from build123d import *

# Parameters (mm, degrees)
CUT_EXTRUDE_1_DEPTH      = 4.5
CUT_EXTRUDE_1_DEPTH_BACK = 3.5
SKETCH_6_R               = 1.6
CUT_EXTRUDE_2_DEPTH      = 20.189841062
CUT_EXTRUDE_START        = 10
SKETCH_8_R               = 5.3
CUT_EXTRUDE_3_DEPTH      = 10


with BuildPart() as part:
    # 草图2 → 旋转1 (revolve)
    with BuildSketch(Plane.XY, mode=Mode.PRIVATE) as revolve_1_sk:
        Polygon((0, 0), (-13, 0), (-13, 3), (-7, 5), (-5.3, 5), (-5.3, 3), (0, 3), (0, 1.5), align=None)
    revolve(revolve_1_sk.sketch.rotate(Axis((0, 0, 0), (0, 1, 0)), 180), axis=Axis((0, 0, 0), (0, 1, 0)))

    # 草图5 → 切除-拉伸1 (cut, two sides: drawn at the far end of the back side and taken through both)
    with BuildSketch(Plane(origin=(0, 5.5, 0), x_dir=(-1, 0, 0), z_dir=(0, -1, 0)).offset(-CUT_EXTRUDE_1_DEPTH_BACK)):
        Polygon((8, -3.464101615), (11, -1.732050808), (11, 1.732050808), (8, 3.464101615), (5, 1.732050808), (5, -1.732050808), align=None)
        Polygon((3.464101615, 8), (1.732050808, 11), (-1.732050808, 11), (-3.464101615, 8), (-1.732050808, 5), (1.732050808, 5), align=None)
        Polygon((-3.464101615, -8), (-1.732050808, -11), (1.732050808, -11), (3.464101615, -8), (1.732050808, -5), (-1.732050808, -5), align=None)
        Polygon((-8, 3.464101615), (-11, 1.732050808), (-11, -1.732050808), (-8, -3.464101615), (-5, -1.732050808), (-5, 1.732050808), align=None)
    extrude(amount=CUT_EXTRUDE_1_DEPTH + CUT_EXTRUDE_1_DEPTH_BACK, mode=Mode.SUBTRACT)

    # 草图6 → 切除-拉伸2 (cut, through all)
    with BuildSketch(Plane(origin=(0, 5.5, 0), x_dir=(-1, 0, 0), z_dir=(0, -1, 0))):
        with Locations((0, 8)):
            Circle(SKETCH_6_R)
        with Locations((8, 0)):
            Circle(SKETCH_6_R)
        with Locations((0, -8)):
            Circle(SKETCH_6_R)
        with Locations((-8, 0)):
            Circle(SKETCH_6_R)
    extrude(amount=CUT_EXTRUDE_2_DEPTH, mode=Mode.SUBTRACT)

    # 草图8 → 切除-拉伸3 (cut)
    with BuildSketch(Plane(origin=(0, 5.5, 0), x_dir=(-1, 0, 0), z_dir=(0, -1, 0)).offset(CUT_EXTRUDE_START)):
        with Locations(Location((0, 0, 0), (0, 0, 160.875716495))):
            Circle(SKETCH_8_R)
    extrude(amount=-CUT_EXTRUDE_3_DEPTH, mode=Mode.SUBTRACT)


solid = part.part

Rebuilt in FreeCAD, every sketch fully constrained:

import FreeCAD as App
import Part
import Sketcher

V = App.Vector
Q = App.Units.Quantity

doc = App.newDocument("Part")
body = doc.addObject("PartDesign::Body", "Body")

# Sketch on XY plane
sketch1 = body.newObject("Sketcher::SketchObject", "Sketch")
sketch1.AttachmentSupport = (doc.getObject("XY_Plane"), [""])
sketch1.MapMode = "FlatFace"
sketch1.addGeometry([
    Part.LineSegment(V(-13, 0, 0), V(0, 0, 0)),  # 0
    Part.LineSegment(V(0, 0, 0), V(0, 3, 0)),  # 1
    Part.LineSegment(V(0, 3, 0), V(-5.3, 3, 0)),  # 2
    Part.LineSegment(V(-5.3, 3, 0), V(-5.3, 5, 0)),  # 3
    Part.LineSegment(V(-5.3, 5, 0), V(-7, 5, 0)),  # 4
    Part.LineSegment(V(-7, 5, 0), V(-13, 3, 0)),  # 5
    Part.LineSegment(V(-13, 3, 0), V(-13, 0, 0)),  # 6
], False)
sketch1.addConstraint([
    Sketcher.Constraint("Coincident", 0, 2, 1, 1),
    Sketcher.Constraint("Coincident", 1, 2, 2, 1),
    Sketcher.Constraint("Coincident", 2, 2, 3, 1),
    Sketcher.Constraint("Coincident", 3, 2, 4, 1),
    Sketcher.Constraint("Coincident", 4, 2, 5, 1),
    Sketcher.Constraint("Coincident", 5, 2, 6, 1),
    Sketcher.Constraint("Coincident", 6, 2, 0, 1),
    Sketcher.Constraint("Horizontal", 0),
    Sketcher.Constraint("Vertical", 1),
    Sketcher.Constraint("Horizontal", 2),
    Sketcher.Constraint("Vertical", 3),
    Sketcher.Constraint("Horizontal", 4),
    Sketcher.Constraint("Vertical", 6),
    Sketcher.Constraint("Coincident", 0, 2, -1, 1),
    Sketcher.Constraint("Horizontal", 2, 2, 5, 2),
    Sketcher.Constraint("DistanceX", 0, 1, 0, 2, 13.0),
    Sketcher.Constraint("DistanceY", 1, 1, 1, 2, 3.0),
    Sketcher.Constraint("DistanceY", 3, 1, 3, 2, 2.0),
    Sketcher.Constraint("DistanceX", 2, 2, 2, 1, 5.3),
    Sketcher.Constraint("DistanceX", 4, 2, 4, 1, 1.7),
])
revolution = body.newObject("PartDesign::Revolution", "Revolution")
revolution.Profile = sketch1
revolution.ReferenceAxis = (sketch1, ["V_Axis"])
revolution.Angle = 360

# Sketch on XZ plane
sketch2 = body.newObject("Sketcher::SketchObject", "Sketch001")
sketch2.AttachmentSupport = (doc.getObject("XZ_Plane"), [""])
sketch2.MapMode = "FlatFace"
sketch2.AttachmentOffset = App.Placement(V(0, 0, -5.5), App.Rotation())
sketch2.addGeometry([
    Part.LineSegment(V(-8, 3.5, 0), V(-11, 1.7, 0)),  # 0
    Part.LineSegment(V(-11, 1.7, 0), V(-11, -1.7, 0)),  # 1
    Part.LineSegment(V(-11, -1.7, 0), V(-8, -3.5, 0)),  # 2
    Part.LineSegment(V(-8, -3.5, 0), V(-5, -1.7, 0)),  # 3
    Part.LineSegment(V(-5, -1.7, 0), V(-5, 1.7, 0)),  # 4
    Part.LineSegment(V(-5, 1.7, 0), V(-8, 3.5, 0)),  # 5
    Part.LineSegment(V(-3.5, -8, 0), V(-1.7, -11, 0)),  # 6
    Part.LineSegment(V(-1.7, -11, 0), V(1.7, -11, 0)),  # 7
    Part.LineSegment(V(1.7, -11, 0), V(3.5, -8, 0)),  # 8
    Part.LineSegment(V(3.5, -8, 0), V(1.7, -5, 0)),  # 9
    Part.LineSegment(V(1.7, -5, 0), V(-1.7, -5, 0)),  # 10
    Part.LineSegment(V(-1.7, -5, 0), V(-3.5, -8, 0)),  # 11
    Part.LineSegment(V(3.5, 8, 0), V(1.7, 11, 0)),  # 12
    Part.LineSegment(V(1.7, 11, 0), V(-1.7, 11, 0)),  # 13
    Part.LineSegment(V(-1.7, 11, 0), V(-3.5, 8, 0)),  # 14
    Part.LineSegment(V(-3.5, 8, 0), V(-1.7, 5, 0)),  # 15
    Part.LineSegment(V(-1.7, 5, 0), V(1.7, 5, 0)),  # 16
    Part.LineSegment(V(1.7, 5, 0), V(3.5, 8, 0)),  # 17
    Part.LineSegment(V(8, -3.5, 0), V(11, -1.7, 0)),  # 18
    Part.LineSegment(V(11, -1.7, 0), V(11, 1.7, 0)),  # 19
    Part.LineSegment(V(11, 1.7, 0), V(8, 3.5, 0)),  # 20
    Part.LineSegment(V(8, 3.5, 0), V(5, 1.7, 0)),  # 21
    Part.LineSegment(V(5, 1.7, 0), V(5, -1.7, 0)),  # 22
    Part.LineSegment(V(5, -1.7, 0), V(8, -3.5, 0)),  # 23
], False)
sketch2.addConstraint([
    Sketcher.Constraint("Coincident", 0, 2, 1, 1),
    Sketcher.Constraint("Coincident", 1, 2, 2, 1),
    Sketcher.Constraint("Coincident", 2, 2, 3, 1),
    Sketcher.Constraint("Coincident", 3, 2, 4, 1),
    Sketcher.Constraint("Coincident", 4, 2, 5, 1),
    Sketcher.Constraint("Coincident", 5, 2, 0, 1),
    Sketcher.Constraint("Coincident", 6, 2, 7, 1),
    Sketcher.Constraint("Coincident", 7, 2, 8, 1),
    Sketcher.Constraint("Coincident", 8, 2, 9, 1),
    Sketcher.Constraint("Coincident", 9, 2, 10, 1),
    Sketcher.Constraint("Coincident", 10, 2, 11, 1),
    Sketcher.Constraint("Coincident", 11, 2, 6, 1),
    Sketcher.Constraint("Coincident", 12, 2, 13, 1),
    Sketcher.Constraint("Coincident", 13, 2, 14, 1),
    Sketcher.Constraint("Coincident", 14, 2, 15, 1),
    Sketcher.Constraint("Coincident", 15, 2, 16, 1),
    Sketcher.Constraint("Coincident", 16, 2, 17, 1),
    Sketcher.Constraint("Coincident", 17, 2, 12, 1),
    Sketcher.Constraint("Coincident", 18, 2, 19, 1),
    Sketcher.Constraint("Coincident", 19, 2, 20, 1),
    Sketcher.Constraint("Coincident", 20, 2, 21, 1),
    Sketcher.Constraint("Coincident", 21, 2, 22, 1),
    Sketcher.Constraint("Coincident", 22, 2, 23, 1),
    Sketcher.Constraint("Coincident", 23, 2, 18, 1),
    Sketcher.Constraint("Vertical", 1),
    Sketcher.Constraint("Vertical", 4),
    Sketcher.Constraint("Horizontal", 7),
    Sketcher.Constraint("Horizontal", 10),
    Sketcher.Constraint("Horizontal", 13),
    Sketcher.Constraint("Horizontal", 16),
    Sketcher.Constraint("Vertical", 19),
    Sketcher.Constraint("Vertical", 22),
    Sketcher.Constraint("Symmetric", 6, 2, 12, 2, -1, 1),
    Sketcher.Constraint("Symmetric", 8, 2, 14, 2, -1, 1),
    Sketcher.Constraint("Symmetric", 9, 2, 15, 2, -1, 1),
    Sketcher.Constraint("Symmetric", 11, 2, 17, 2, -1, 1),
    Sketcher.Constraint("Symmetric", 0, 2, 18, 2, -1, 1),
    Sketcher.Constraint("Symmetric", 2, 2, 20, 2, -1, 1),
    Sketcher.Constraint("Symmetric", 3, 2, 21, 2, -1, 1),
    Sketcher.Constraint("Symmetric", 5, 2, 23, 2, -1, 1),
    Sketcher.Constraint("Symmetric", 8, 2, 11, 2, -2),
    Sketcher.Constraint("Symmetric", 5, 2, 20, 2, -2),
    Sketcher.Constraint("Parallel", 0, 3),
    Sketcher.Constraint("Parallel", 2, 5),
    Sketcher.Constraint("Perpendicular", 3, 6),
    Sketcher.Constraint("Perpendicular", 5, 8),
    Sketcher.Constraint("Parallel", 6, 9),
    Sketcher.Constraint("Parallel", 8, 11),
    Sketcher.Constraint("Parallel", 11, 14),
    Sketcher.Constraint("Parallel", 14, 17),
    Sketcher.Constraint("Perpendicular", 17, 20),
    Sketcher.Constraint("Parallel", 20, 23),
    Sketcher.Constraint("Horizontal", 1, 2, 3, 2),
    Sketcher.Constraint("Horizontal", 0, 2, 4, 2),
    Sketcher.Constraint("Vertical", 7, 2, 9, 2),
    Sketcher.Constraint("Equal", 16, 1),
    Sketcher.Constraint("Equal", 5, 6),
    Sketcher.Constraint("Angle", 0, Q("-150 deg")),
    Sketcher.Constraint("DistanceX", 0, 2, -1, 1, 11.0),
    Sketcher.Constraint("DistanceX", 2, 2, -1, 1, 8.0),
    Sketcher.Constraint("DistanceY", 6, 2, -1, 1, 11.0),
    Sketcher.Constraint("DistanceX", 7, 1, 7, 2, 3.464102),
])
pocket1 = body.newObject("PartDesign::Pocket", "Pocket")
pocket1.Profile = sketch2
pocket1.Type = "TwoLengths"
pocket1.Length = 4.5
pocket1.Length2 = 3.5
pocket1.Reversed = True

# Sketch on XZ plane
sketch3 = body.newObject("Sketcher::SketchObject", "Sketch002")
sketch3.AttachmentSupport = (doc.getObject("XZ_Plane"), [""])
sketch3.MapMode = "FlatFace"
sketch3.AttachmentOffset = App.Placement(V(0, 0, -5.5), App.Rotation())
sketch3.addGeometry([
    Part.Circle(V(0, -8, 0), V(0, 0, 1), 1.6),
    Part.Circle(V(-8, 0, 0), V(0, 0, 1), 1.6),
    Part.Circle(V(0, 8, 0), V(0, 0, 1), 1.6),
    Part.Circle(V(8, 0, 0), V(0, 0, 1), 1.6),
], False)
sketch3.addConstraint([
    Sketcher.Constraint("Equal", 0, 1),
    Sketcher.Constraint("Equal", 1, 2),
    Sketcher.Constraint("Equal", 2, 3),
    Sketcher.Constraint("Symmetric", 0, 3, 2, 3, -1, 1),
    Sketcher.Constraint("Symmetric", 1, 3, 3, 3, -1, 1),
    Sketcher.Constraint("PointOnObject", 0, 3, -2),
    Sketcher.Constraint("PointOnObject", 1, 3, -1),
    Sketcher.Constraint("Diameter", 0, 3.2),
    Sketcher.Constraint("DistanceY", 0, 3, -1, 1, 8.0),
    Sketcher.Constraint("DistanceX", 1, 3, -1, 1, 8.0),
])
pocket2 = body.newObject("PartDesign::Pocket", "Pocket001")
pocket2.Profile = sketch3
pocket2.Type = "ThroughAll"
pocket2.Reversed = True

# Sketch on XZ plane
sketch4 = body.newObject("Sketcher::SketchObject", "Sketch003")
sketch4.AttachmentSupport = (doc.getObject("XZ_Plane"), [""])
sketch4.MapMode = "FlatFace"
sketch4.AttachmentOffset = App.Placement(V(0, 0, 4.5), App.Rotation())
sketch4.addGeometry(Part.Circle(V(0, 0, 0), V(0, 0, 1), 5), False)
sketch4.addConstraint([
    Sketcher.Constraint("Coincident", 0, 3, -1, 1),
    Sketcher.Constraint("Diameter", 0, 10.6),
])
pocket3 = body.newObject("PartDesign::Pocket", "Pocket002")
pocket3.Profile = sketch4
pocket3.Length = 10

doc.recompute()
